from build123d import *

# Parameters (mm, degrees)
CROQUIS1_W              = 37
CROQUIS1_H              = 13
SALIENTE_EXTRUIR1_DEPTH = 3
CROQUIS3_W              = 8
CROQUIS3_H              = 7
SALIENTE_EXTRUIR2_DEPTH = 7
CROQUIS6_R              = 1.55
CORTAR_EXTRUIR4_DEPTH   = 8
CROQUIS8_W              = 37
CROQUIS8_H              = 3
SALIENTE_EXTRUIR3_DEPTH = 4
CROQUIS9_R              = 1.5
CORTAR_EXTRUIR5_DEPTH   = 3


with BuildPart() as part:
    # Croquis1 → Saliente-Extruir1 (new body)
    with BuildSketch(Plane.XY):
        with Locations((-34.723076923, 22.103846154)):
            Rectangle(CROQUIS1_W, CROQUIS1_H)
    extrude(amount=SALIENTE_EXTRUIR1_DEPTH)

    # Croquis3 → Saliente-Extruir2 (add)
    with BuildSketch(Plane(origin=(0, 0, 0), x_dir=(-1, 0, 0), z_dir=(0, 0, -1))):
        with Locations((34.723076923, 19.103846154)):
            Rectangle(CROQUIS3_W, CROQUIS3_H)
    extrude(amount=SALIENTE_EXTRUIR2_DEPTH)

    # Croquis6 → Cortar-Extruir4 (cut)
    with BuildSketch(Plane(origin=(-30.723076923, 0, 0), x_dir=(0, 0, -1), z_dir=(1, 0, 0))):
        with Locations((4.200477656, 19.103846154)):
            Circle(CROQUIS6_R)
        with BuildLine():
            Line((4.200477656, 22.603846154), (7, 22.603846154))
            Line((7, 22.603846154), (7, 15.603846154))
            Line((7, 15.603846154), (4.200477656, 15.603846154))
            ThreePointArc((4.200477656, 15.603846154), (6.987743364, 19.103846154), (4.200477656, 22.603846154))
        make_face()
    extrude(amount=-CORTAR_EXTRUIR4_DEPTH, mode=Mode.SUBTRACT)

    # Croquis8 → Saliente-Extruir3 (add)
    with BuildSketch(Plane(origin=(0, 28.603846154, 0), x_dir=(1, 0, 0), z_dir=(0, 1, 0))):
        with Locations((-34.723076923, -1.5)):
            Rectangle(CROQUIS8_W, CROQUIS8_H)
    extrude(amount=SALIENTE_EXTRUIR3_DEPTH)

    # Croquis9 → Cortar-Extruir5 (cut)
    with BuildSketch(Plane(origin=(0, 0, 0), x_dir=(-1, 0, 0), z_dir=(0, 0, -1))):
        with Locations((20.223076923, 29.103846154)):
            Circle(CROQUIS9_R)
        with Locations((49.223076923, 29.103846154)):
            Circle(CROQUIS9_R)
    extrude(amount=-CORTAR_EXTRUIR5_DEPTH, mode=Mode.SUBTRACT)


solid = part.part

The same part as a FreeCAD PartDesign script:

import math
import FreeCAD as App
import Part
import Sketcher

V = App.Vector
Q = App.Units.Quantity


def add_polygon(sketch, points):
    """Adds a closed chain of lines whose ends are joined by coincident constraints."""
    first, n = sketch.GeometryCount, len(points)
    for a, b in zip(points, points[1:] + points[:1]):
        sketch.addGeometry(Part.LineSegment(App.Vector(*a, 0), App.Vector(*b, 0)), False)
    for i in range(n):
        sketch.addConstraint(Sketcher.Constraint("Coincident", first + i, 2, first + (i + 1) % n, 1))

doc = App.newDocument("Part")
params = doc.addObject("Spreadsheet::Sheet", "Params")
for row, (alias, value) in enumerate([
    ("sketch1_width", "37 mm"),
    ("sketch1_height", "13 mm"),
    ("pad1_length", "3 mm"),
    ("sketch2_width", "8 mm"),
    ("sketch2_height", "7 mm"),
    ("pad2_length", "7 mm"),
    ("sketch3_diameter", "3.1 mm"),
    ("sketch3_width", "7 mm"),
    ("pocket1_length", "8 mm"),
    ("sketch4_width", "37 mm"),
    ("sketch4_height", "3 mm"),
    ("pad3_length", "4 mm"),
    ("sketch5_diameter", "3 mm"),
    ("pocket2_length", "3 mm"),
], start=1):
    params.set(f"A{row}", alias)
    params.set(f"B{row}", "=" + value)
    params.setAlias(f"B{row}", alias)

body = doc.addObject("PartDesign::Body", "Body")

# Sketch on XY plane
sketch1 = body.newObject("Sketcher::SketchObject", "Sketch")
sketch1.AttachmentSupport = (doc.getObject("XY_Plane"), [""])
sketch1.MapMode = "FlatFace"
add_polygon(sketch1, [(-53, 29), (-53, 16), (-16, 16), (-16, 29)])  # lines 0-3
sketch1.addConstraint([
    Sketcher.Constraint("Vertical", 0),
    Sketcher.Constraint("Horizontal", 1),
    Sketcher.Constraint("Vertical", 2),
    Sketcher.Constraint("Horizontal", 3),
    Sketcher.Constraint("DistanceX", 1, 1, 1, 2, Q("37 mm")),
    Sketcher.Constraint("DistanceY", 0, 2, 0, 1, Q("13 mm")),
    Sketcher.Constraint("DistanceX", 0, 2, -1, 1, Q("53.223077 mm")),
    Sketcher.Constraint("DistanceY", -1, 1, 0, 2, Q("15.603846 mm")),
])
sketch1.setExpression("Constraints[8]", "Params.sketch1_width")
sketch1.setExpression("Constraints[9]", "Params.sketch1_height")
pad1 = body.newObject("PartDesign::Pad", "Pad")
pad1.Profile = sketch1
pad1.setExpression("Length", "Params.pad1_length")

# Sketch on XY plane
sketch2 = body.newObject("Sketcher::SketchObject", "Sketch001")
sketch2.AttachmentSupport = (doc.getObject("XY_Plane"), [""])
sketch2.MapMode = "FlatFace"
add_polygon(sketch2, [(-31, 23), (-31, 16), (-39, 16), (-39, 23)])  # lines 0-3
sketch2.addConstraint([
    Sketcher.Constraint("Vertical", 0),
    Sketcher.Constraint("Horizontal", 1),
    Sketcher.Constraint("Vertical", 2),
    Sketcher.Constraint("Horizontal", 3),
    Sketcher.Constraint("DistanceX", 1, 2, 1, 1, Q("8 mm")),
    Sketcher.Constraint("DistanceY", 0, 2, 0, 1, Q("7 mm")),
    Sketcher.Constraint("DistanceX", 0, 2, -1, 1, Q("30.723077 mm")),
    Sketcher.Constraint("DistanceY", -1, 1, 0, 2, Q("15.603846 mm")),
])
sketch2.setExpression("Constraints[8]", "Params.sketch2_width")
sketch2.setExpression("Constraints[9]", "Params.sketch2_height")
pad2 = body.newObject("PartDesign::Pad", "Pad001")
pad2.Profile = sketch2
pad2.setExpression("Length", "Params.pad2_length")
pad2.Reversed = True

# Sketch on YZ plane
sketch3 = body.newObject("Sketcher::SketchObject", "Sketch002")
sketch3.AttachmentSupport = (doc.getObject("YZ_Plane"), [""])
sketch3.MapMode = "FlatFace"
sketch3.AttachmentOffset = App.Placement(V(0, 0, -30.723077), App.Rotation())
sketch3.addGeometry([
    Part.Circle(V(19.1, -4.2, 0), V(0, 0, 1), 1.6),  # 0
    Part.LineSegment(V(22.6, -7, 0), V(22.6, -4.2, 0)),  # 1
    Part.ArcOfCircle(Part.Circle(V(19.1, -3.4, 0), V(0, 0, 1), 3.6), math.radians(-167), math.radians(-13)),  # 2
    Part.LineSegment(V(15.6, -4.2, 0), V(15.6, -7, 0)),  # 3
    Part.LineSegment(V(15.6, -7, 0), V(22.6, -7, 0)),  # 4
], False)
sketch3.addConstraint([
    Sketcher.Constraint("Coincident", 1, 2, 2, 2),
    Sketcher.Constraint("Coincident", 2, 1, 3, 1),
    Sketcher.Constraint("Coincident", 3, 2, 4, 1),
    Sketcher.Constraint("Coincident", 4, 2, 1, 1),
    Sketcher.Constraint("Vertical", 1),
    Sketcher.Constraint("Vertical", 3),
    Sketcher.Constraint("Horizontal", 4),
    Sketcher.Constraint("Horizontal", 0, 3, 1, 2),
    Sketcher.Constraint("Horizontal", 1, 2, 2, 1),
    Sketcher.Constraint("Vertical", 0, 3, 2, 3),
    Sketcher.Constraint("Diameter", 0, Q("3.1 mm")),
    Sketcher.Constraint("DistanceX", 4, 1, 4, 2, Q("7 mm")),
    Sketcher.Constraint("DistanceY", 3, 2, -1, 1, Q("7 mm")),
    Sketcher.Constraint("Radius", 2, Q("3.591127 mm")),
    Sketcher.Constraint("DistanceY", 1, 1, 1, 2, Q("2.799522 mm")),
    Sketcher.Constraint("DistanceX", -1, 1, 0, 3, Q("19.103846 mm")),
])
sketch3.setExpression("Constraints[10]", "Params.sketch3_diameter")
sketch3.setExpression("Constraints[11]", "Params.sketch3_width")
pocket1 = body.newObject("PartDesign::Pocket", "Pocket")
pocket1.Profile = sketch3
pocket1.setExpression("Length", "Params.pocket1_length")

# Sketch on XZ plane
sketch4 = body.newObject("Sketcher::SketchObject", "Sketch003")
sketch4.AttachmentSupport = (doc.getObject("XZ_Plane"), [""])
sketch4.MapMode = "FlatFace"
sketch4.AttachmentOffset = App.Placement(V(0, 0, -28.603846), App.Rotation())
add_polygon(sketch4, [(-53.2, 0), (-53.2, 3), (-16.2, 3), (-16.2, 0)])  # lines 0-3
sketch4.addConstraint([
    Sketcher.Constraint("Vertical", 0),
    Sketcher.Constraint("Horizontal", 1),
    Sketcher.Constraint("Vertical", 2),
    Sketcher.Constraint("Horizontal", 3),
    Sketcher.Constraint("PointOnObject", 2, 2, -1),
    Sketcher.Constraint("DistanceX", 1, 1, 1, 2, Q("37 mm")),
    Sketcher.Constraint("DistanceY", 0, 1, 0, 2, Q("3 mm")),
    Sketcher.Constraint("DistanceX", 0, 2, -1, 1, Q("53.223077 mm")),
])
sketch4.setExpression("Constraints[9]", "Params.sketch4_width")
sketch4.setExpression("Constraints[10]", "Params.sketch4_height")
pad3 = body.newObject("PartDesign::Pad", "Pad002")
pad3.Profile = sketch4
pad3.setExpression("Length", "Params.pad3_length")
pad3.Reversed = True

# Sketch on XY plane
sketch5 = body.newObject("Sketcher::SketchObject", "Sketch004")
sketch5.AttachmentSupport = (doc.getObject("XY_Plane"), [""])
sketch5.MapMode = "FlatFace"
sketch5.addGeometry([
    Part.Circle(V(-20.2, 29.1, 0), V(0, 0, 1), 1.5),
    Part.Circle(V(-49.2, 29.1, 0), V(0, 0, 1), 1.5),
], False)
sketch5.addConstraint([
    Sketcher.Constraint("Equal", 0, 1),
    Sketcher.Constraint("Horizontal", 0, 3, 1, 3),
    Sketcher.Constraint("Diameter", 0, Q("3 mm")),
    Sketcher.Constraint("DistanceX", 1, 3, 0, 3, Q("29 mm")),
    Sketcher.Constraint("DistanceX", 0, 3, -1, 1, Q("20.223077 mm")),
    Sketcher.Constraint("DistanceY", -1, 1, 0, 3, Q("29.103846 mm")),
])
sketch5.setExpression("Constraints[2]", "Params.sketch5_diameter")
pocket2 = body.newObject("PartDesign::Pocket", "Pocket001")
pocket2.Profile = sketch5
pocket2.setExpression("Length", "Params.pocket2_length")
pocket2.Reversed = True

doc.recompute()
